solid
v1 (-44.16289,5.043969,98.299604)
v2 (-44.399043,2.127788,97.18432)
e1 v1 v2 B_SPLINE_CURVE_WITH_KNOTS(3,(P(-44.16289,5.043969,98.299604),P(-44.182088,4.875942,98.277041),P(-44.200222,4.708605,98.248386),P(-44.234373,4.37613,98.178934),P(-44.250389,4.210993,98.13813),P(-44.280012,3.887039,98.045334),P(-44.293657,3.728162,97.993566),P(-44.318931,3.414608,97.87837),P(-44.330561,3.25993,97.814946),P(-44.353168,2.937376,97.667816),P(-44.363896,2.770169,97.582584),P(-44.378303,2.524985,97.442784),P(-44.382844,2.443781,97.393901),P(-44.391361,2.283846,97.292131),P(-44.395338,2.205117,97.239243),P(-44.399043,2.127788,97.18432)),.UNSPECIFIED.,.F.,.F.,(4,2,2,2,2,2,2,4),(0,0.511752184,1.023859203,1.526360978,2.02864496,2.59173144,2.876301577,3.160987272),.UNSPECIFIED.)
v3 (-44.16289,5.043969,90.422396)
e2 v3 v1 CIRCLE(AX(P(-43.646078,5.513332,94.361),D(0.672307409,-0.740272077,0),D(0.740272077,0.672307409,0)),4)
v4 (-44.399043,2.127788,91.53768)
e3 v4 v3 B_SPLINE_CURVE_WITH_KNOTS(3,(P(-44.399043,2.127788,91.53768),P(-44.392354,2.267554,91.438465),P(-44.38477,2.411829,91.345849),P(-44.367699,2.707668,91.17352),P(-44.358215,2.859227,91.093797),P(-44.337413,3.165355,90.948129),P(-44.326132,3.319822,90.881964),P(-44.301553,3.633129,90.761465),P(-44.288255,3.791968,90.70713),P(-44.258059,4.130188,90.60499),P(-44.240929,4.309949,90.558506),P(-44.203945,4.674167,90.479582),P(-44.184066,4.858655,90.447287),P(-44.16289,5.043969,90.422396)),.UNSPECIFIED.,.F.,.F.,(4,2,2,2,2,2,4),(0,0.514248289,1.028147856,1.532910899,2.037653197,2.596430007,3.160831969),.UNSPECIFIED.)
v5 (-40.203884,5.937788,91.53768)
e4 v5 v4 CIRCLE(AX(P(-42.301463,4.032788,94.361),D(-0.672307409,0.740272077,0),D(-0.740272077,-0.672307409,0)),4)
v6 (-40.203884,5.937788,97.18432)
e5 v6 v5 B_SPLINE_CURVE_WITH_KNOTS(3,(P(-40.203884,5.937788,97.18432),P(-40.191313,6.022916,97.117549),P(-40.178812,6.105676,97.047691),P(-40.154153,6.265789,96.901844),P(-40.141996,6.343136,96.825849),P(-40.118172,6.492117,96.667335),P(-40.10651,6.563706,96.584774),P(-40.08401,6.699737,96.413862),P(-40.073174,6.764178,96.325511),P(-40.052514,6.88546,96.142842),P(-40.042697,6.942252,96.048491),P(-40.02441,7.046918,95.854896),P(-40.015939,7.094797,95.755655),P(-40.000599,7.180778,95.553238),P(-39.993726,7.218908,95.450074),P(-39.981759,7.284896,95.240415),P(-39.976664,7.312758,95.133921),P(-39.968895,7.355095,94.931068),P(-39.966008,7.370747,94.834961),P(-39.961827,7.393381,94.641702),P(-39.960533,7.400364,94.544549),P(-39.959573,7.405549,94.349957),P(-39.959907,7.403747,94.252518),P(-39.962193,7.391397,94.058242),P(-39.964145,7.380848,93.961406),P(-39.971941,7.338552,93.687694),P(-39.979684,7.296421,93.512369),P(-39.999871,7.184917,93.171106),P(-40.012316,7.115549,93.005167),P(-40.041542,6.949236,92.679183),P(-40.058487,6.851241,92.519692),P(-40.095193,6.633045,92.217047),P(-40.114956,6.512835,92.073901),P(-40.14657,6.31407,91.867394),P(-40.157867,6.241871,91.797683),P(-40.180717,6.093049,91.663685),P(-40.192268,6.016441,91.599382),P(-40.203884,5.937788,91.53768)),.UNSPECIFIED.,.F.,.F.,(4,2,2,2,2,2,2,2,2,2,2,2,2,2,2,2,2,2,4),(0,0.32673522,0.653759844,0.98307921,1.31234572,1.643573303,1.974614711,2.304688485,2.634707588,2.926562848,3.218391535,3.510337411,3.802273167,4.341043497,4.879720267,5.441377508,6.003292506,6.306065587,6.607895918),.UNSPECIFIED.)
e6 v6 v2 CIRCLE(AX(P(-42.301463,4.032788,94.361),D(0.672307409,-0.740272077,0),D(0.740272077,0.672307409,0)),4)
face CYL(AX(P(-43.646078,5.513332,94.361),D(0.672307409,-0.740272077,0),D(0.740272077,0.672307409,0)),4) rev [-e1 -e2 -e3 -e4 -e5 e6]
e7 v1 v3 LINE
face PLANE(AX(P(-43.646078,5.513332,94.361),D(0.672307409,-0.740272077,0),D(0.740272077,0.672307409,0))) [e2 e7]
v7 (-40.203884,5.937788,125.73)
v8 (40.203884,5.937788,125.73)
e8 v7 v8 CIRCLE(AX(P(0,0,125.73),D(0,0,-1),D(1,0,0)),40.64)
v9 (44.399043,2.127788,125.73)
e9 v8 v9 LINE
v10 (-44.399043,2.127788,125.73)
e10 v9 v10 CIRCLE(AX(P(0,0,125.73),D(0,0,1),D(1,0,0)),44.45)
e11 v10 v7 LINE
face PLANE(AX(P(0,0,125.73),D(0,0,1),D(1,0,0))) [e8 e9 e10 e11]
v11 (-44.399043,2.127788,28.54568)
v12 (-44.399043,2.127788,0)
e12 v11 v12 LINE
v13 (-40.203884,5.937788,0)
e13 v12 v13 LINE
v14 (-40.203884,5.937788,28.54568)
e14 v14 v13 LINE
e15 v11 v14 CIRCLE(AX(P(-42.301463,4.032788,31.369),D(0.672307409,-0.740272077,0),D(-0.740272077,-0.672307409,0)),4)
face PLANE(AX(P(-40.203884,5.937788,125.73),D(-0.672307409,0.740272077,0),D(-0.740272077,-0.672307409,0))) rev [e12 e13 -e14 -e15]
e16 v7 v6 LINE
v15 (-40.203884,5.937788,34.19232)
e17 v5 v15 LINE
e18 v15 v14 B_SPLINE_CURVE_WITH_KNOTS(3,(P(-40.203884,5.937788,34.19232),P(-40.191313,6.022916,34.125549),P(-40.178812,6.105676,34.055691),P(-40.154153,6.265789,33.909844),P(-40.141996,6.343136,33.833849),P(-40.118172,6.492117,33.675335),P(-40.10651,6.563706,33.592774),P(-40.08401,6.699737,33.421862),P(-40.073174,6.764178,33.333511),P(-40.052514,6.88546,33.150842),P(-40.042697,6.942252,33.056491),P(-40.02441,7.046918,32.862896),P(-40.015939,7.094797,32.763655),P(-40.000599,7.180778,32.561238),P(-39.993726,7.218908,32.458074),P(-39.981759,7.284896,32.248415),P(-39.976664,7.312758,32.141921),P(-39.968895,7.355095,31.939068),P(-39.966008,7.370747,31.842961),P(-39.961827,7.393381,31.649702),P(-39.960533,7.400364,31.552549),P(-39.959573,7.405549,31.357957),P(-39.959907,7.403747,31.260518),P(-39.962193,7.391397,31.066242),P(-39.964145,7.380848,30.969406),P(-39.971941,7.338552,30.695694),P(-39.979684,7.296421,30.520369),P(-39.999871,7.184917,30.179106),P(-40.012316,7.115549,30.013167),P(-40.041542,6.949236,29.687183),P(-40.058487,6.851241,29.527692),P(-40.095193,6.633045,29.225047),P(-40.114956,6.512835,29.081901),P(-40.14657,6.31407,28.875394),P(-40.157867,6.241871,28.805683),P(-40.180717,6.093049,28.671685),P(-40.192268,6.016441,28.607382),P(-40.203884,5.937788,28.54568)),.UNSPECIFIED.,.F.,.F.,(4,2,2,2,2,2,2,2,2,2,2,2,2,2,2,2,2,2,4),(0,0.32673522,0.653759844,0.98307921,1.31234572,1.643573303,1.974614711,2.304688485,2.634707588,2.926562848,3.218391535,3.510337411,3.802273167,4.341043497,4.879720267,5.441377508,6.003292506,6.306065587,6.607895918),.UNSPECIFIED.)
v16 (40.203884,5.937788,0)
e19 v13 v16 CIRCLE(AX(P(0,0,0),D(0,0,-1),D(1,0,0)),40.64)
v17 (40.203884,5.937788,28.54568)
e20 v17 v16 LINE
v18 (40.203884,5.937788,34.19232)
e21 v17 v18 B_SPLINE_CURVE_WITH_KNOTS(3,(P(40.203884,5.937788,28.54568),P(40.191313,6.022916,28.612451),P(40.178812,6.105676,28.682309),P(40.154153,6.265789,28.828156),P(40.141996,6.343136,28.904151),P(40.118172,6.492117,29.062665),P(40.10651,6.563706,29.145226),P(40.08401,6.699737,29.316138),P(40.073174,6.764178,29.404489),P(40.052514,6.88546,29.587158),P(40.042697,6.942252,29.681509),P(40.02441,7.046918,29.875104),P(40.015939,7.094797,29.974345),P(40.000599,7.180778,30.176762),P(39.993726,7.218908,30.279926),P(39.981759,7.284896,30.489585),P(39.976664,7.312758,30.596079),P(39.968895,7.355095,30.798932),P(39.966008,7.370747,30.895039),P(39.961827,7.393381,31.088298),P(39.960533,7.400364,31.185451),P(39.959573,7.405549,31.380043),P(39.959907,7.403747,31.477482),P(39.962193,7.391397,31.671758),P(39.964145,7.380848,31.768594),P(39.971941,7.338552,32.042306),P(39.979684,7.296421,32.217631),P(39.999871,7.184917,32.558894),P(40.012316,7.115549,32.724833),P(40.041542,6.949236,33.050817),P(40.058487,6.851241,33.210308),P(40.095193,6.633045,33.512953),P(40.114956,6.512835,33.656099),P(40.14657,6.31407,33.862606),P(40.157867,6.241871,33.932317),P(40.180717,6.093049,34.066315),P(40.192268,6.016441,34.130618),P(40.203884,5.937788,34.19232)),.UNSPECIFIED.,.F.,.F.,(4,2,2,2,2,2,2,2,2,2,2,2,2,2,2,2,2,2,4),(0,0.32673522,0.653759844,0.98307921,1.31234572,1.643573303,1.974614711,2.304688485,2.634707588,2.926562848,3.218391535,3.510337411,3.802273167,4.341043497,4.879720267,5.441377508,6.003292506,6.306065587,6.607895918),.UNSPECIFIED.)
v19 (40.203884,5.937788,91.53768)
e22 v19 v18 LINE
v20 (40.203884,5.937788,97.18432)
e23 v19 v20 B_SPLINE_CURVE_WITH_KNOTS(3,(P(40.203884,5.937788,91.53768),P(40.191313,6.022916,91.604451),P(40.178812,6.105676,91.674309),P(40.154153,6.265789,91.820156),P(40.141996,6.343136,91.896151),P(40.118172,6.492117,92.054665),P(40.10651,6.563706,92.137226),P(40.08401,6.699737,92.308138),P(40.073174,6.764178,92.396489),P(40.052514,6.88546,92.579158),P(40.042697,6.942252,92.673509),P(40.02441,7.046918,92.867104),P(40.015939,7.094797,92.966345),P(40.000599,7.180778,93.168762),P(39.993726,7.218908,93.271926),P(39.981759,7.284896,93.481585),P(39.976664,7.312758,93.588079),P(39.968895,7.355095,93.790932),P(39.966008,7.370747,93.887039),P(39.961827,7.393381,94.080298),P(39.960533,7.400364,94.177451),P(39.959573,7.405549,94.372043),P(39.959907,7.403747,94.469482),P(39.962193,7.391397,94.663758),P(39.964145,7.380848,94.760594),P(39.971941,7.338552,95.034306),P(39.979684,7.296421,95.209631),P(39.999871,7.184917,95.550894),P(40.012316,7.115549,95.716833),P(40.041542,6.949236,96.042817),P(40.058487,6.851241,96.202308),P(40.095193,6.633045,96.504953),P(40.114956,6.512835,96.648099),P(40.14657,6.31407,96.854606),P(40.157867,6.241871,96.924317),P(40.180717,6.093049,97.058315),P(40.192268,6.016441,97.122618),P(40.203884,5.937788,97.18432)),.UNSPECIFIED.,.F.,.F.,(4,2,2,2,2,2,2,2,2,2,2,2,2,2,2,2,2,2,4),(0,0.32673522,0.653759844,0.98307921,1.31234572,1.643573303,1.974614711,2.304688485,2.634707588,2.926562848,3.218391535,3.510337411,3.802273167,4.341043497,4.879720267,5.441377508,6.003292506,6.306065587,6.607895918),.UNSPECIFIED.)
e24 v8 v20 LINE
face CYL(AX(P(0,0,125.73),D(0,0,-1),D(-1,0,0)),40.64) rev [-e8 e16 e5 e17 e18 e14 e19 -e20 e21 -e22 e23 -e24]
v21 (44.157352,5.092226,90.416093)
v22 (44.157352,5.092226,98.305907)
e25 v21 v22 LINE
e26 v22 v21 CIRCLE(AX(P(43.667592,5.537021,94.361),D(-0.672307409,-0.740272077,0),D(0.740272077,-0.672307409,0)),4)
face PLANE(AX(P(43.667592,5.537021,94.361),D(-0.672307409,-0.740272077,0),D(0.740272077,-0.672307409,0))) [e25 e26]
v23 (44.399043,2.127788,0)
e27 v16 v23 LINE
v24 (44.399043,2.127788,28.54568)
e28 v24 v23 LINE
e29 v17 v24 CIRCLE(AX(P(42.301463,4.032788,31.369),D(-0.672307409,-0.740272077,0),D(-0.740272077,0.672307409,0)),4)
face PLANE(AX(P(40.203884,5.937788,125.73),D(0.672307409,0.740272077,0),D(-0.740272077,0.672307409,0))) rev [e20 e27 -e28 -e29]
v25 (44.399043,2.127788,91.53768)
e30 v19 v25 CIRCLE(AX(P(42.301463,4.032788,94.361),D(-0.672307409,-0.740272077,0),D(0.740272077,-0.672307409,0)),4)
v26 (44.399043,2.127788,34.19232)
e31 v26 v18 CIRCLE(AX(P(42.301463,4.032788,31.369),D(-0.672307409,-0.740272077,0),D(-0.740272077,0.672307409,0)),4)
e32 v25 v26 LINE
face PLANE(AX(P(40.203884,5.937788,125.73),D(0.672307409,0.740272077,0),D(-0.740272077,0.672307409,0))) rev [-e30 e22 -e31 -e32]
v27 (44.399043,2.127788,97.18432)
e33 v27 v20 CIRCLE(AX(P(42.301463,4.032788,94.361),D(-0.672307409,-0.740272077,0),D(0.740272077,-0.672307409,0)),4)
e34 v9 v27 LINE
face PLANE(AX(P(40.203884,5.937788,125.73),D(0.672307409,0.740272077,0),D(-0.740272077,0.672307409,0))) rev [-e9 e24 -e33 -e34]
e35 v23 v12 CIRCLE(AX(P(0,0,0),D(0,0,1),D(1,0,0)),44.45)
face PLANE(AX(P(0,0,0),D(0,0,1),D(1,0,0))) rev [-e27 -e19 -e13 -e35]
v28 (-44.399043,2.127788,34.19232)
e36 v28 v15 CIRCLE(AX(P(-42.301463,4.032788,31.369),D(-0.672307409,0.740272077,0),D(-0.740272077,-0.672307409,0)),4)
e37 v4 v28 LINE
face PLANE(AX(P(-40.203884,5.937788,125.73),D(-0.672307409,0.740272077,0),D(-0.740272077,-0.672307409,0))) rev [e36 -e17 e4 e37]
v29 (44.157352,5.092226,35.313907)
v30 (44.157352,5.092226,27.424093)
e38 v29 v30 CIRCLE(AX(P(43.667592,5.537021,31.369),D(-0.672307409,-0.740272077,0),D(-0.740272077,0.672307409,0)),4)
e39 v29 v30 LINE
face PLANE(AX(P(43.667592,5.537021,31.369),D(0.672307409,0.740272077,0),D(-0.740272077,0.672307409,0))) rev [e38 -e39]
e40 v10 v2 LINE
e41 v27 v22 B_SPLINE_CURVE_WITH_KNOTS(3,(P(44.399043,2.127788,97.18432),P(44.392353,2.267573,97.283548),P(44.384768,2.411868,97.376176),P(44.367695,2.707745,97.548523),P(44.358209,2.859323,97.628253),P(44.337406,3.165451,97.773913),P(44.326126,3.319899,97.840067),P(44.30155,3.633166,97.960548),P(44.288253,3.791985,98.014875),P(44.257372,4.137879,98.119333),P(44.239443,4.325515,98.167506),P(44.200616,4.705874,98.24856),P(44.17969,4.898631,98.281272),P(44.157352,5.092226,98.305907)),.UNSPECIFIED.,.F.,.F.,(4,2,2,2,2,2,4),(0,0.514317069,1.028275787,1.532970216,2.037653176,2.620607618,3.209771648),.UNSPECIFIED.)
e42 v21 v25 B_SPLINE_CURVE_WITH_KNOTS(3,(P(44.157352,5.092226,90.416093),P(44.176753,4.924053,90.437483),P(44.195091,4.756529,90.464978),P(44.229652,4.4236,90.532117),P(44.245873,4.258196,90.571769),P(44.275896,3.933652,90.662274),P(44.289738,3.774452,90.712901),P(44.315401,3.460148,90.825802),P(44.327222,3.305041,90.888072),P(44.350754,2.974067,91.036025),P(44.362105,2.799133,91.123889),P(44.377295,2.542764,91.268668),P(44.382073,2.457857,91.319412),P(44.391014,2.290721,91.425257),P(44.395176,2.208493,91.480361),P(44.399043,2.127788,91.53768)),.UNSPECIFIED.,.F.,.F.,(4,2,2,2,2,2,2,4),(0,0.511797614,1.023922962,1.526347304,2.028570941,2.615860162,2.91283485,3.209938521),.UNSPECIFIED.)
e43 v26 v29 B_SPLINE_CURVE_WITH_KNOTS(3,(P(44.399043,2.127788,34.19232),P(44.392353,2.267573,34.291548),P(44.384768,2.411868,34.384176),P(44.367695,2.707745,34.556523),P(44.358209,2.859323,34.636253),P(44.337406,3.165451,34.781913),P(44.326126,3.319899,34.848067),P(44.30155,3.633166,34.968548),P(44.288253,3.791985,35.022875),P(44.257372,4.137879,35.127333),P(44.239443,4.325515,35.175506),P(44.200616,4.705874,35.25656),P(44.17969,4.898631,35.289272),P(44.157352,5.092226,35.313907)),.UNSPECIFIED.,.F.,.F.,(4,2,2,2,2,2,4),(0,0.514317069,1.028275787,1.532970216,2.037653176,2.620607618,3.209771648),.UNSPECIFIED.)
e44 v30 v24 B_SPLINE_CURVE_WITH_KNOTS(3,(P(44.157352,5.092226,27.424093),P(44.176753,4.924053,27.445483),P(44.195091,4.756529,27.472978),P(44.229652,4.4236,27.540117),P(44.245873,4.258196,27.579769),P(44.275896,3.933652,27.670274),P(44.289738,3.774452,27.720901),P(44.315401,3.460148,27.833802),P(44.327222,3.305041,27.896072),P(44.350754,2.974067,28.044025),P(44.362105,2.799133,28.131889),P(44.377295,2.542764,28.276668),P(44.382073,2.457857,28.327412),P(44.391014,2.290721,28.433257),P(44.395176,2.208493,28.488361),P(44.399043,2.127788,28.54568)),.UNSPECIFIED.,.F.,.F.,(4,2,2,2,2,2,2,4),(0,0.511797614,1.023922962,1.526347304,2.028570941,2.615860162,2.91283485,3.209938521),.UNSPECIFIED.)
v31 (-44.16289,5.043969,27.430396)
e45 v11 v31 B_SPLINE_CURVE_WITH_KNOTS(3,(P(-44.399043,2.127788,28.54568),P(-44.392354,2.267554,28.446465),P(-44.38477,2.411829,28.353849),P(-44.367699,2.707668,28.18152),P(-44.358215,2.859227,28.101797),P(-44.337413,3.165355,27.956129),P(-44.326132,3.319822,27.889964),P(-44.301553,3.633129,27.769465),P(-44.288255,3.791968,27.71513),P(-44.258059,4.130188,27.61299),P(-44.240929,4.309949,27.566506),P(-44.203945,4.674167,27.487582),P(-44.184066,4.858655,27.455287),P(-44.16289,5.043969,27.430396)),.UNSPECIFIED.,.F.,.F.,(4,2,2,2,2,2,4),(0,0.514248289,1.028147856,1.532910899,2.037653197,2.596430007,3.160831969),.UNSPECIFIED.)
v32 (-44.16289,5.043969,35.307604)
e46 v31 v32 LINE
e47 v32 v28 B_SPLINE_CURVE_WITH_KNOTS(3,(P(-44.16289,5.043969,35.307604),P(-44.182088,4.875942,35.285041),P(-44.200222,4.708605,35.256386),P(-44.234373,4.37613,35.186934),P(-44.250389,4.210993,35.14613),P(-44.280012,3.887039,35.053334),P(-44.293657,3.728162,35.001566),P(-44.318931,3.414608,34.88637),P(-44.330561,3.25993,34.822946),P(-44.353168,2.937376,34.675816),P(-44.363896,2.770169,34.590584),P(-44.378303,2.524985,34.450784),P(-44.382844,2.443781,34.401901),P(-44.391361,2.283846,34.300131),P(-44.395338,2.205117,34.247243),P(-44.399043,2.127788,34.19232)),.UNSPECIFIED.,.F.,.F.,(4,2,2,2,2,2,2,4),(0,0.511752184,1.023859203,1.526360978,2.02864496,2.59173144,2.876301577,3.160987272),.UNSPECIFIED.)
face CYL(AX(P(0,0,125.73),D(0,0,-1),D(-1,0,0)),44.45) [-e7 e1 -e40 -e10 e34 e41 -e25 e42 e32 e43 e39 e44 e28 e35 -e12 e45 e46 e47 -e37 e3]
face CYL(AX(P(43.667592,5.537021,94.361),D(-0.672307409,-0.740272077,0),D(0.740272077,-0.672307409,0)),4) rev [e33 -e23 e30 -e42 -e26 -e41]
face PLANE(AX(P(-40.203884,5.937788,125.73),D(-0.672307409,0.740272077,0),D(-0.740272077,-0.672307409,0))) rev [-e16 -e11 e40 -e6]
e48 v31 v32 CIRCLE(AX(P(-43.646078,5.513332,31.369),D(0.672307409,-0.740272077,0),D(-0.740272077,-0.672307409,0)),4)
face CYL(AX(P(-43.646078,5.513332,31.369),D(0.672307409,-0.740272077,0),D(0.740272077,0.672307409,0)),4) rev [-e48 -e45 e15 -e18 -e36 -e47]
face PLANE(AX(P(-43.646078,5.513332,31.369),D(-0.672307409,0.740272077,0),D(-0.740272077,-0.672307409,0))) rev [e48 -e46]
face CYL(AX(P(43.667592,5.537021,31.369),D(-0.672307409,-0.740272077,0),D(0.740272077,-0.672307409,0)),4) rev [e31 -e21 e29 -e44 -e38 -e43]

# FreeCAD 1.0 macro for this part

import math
import FreeCAD as App
import Part
import Sketcher
Q = App.Units.Quantity

doc = App.newDocument("Part")
body = doc.addObject("PartDesign::Body", "Body")

# Sketch on XY plane
sketch1 = doc.addObject("Sketcher::SketchObject", "Sketch")
body.addObject(sketch1)
sketch1.AttachmentSupport = (doc.XY_Plane, [""])
sketch1.MapMode = "FlatFace"
sketch1.addGeometry(Part.LineSegment(App.Vector(-44, 2, 0), App.Vector(-40, 6, 0)), False)
sketch1.addGeometry(Part.ArcOfCircle(Part.Circle(App.Vector(0, 0, 0), App.Vector(0, 0, 1), 41), math.radians(8), math.radians(172)), False)
sketch1.addGeometry(Part.LineSegment(App.Vector(40, 6, 0), App.Vector(44, 2, 0)), False)
sketch1.addGeometry(Part.ArcOfCircle(Part.Circle(App.Vector(0, 0, 0), App.Vector(0, 0, 1), 44), math.radians(3), math.radians(177)), False)
sketch1.addConstraint(Sketcher.Constraint("Coincident", 0, 2, 1, 2))
sketch1.addConstraint(Sketcher.Constraint("Coincident", 1, 1, 2, 1))
sketch1.addConstraint(Sketcher.Constraint("Coincident", 2, 2, 3, 1))
sketch1.addConstraint(Sketcher.Constraint("Coincident", 3, 2, 0, 1))
sketch1.addConstraint(Sketcher.Constraint("Coincident", 1, 3, -1, 1))
sketch1.addConstraint(Sketcher.Constraint("Coincident", 3, 3, -1, 1))
sketch1.addConstraint(Sketcher.Constraint("Horizontal", 0, 2, 1, 1))
sketch1.addConstraint(Sketcher.Constraint("Horizontal", 2, 2, 3, 2))
sketch1.addConstraint(Sketcher.Constraint("Radius", 1, Q("1.6 in")))
sketch1.addConstraint(Sketcher.Constraint("Radius", 3, Q("1.75 in")))
sketch1.addConstraint(Sketcher.Constraint("DistanceY", 2, 2, 1, 1, Q("0.15 in")))
sketch1.addConstraint(Sketcher.Constraint("Distance", 0, 5.66705))
pad1 = doc.addObject("PartDesign::Pad", "Pad")
body.addObject(pad1)
pad1.Profile = sketch1
pad1.Length = Q("4.95 in")

# Sketch on an angled plane
sketch2 = doc.addObject("Sketcher::SketchObject", "Sketch001")
body.addObject(sketch2)
sketch2.Placement = App.Placement(App.Vector(-21.127225, 23.263011, 0), App.Rotation(App.Vector(0.740272077, 0.672307409, 0), App.Vector(0, 0, 1), App.Vector(0.672307409, -0.740272077, 0), "ZXY"))
sketch2.addGeometry(Part.Circle(App.Vector(-28.6, 94.4, 0), App.Vector(0, 0, 1), 4), False)
sketch2.addGeometry(Part.Circle(App.Vector(-28.6, 31.4, 0), App.Vector(0, 0, 1), 4), False)
sketch2.addConstraint(Sketcher.Constraint("Equal", 0, 1))
sketch2.addConstraint(Sketcher.Constraint("Vertical", 0, 3, 1, 3))
sketch2.addConstraint(Sketcher.Constraint("Diameter", 0, 8.0))
sketch2.addConstraint(Sketcher.Constraint("DistanceY", 1, 3, 0, 3, Q("2.48 in")))
sketch2.addConstraint(Sketcher.Constraint("DistanceY", -1, 1, 0, 3, Q("3.715 in")))
sketch2.addConstraint(Sketcher.Constraint("DistanceX", 0, 3, -1, 1, 28.603319))
pocket1 = doc.addObject("PartDesign::Pocket", "Pocket")
body.addObject(pocket1)
pocket1.Profile = sketch2
pocket1.Length = 2

# Sketch on an angled plane
sketch3 = doc.addObject("Sketcher::SketchObject", "Sketch002")
body.addObject(sketch3)
sketch3.Placement = App.Placement(App.Vector(21.127225, 23.263011, 0), App.Rotation(App.Vector(-0.740272077, 0.672307409, 0), App.Vector(0, 0, -1), App.Vector(-0.672307409, -0.740272077, 0), "ZXY"))
sketch3.addGeometry(Part.Circle(App.Vector(-28.6, -94.4, 0), App.Vector(0, 0, 1), 4), False)
sketch3.addGeometry(Part.Circle(App.Vector(-28.6, -31.4, 0), App.Vector(0, 0, 1), 4), False)
sketch3.addConstraint(Sketcher.Constraint("Equal", 0, 1))
sketch3.addConstraint(Sketcher.Constraint("Vertical", 0, 3, 1, 3))
sketch3.addConstraint(Sketcher.Constraint("Diameter", 0, 8.0))
sketch3.addConstraint(Sketcher.Constraint("DistanceY", 0, 3, 1, 3, Q("2.48 in")))
sketch3.addConstraint(Sketcher.Constraint("DistanceY", 0, 3, -1, 1, Q("3.715 in")))
sketch3.addConstraint(Sketcher.Constraint("DistanceX", 0, 3, -1, 1, 28.603319))
pocket2 = doc.addObject("PartDesign::Pocket", "Pocket001")
body.addObject(pocket2)
pocket2.Profile = sketch3
pocket2.Length = Q("0.08 in")

doc.recompute()
